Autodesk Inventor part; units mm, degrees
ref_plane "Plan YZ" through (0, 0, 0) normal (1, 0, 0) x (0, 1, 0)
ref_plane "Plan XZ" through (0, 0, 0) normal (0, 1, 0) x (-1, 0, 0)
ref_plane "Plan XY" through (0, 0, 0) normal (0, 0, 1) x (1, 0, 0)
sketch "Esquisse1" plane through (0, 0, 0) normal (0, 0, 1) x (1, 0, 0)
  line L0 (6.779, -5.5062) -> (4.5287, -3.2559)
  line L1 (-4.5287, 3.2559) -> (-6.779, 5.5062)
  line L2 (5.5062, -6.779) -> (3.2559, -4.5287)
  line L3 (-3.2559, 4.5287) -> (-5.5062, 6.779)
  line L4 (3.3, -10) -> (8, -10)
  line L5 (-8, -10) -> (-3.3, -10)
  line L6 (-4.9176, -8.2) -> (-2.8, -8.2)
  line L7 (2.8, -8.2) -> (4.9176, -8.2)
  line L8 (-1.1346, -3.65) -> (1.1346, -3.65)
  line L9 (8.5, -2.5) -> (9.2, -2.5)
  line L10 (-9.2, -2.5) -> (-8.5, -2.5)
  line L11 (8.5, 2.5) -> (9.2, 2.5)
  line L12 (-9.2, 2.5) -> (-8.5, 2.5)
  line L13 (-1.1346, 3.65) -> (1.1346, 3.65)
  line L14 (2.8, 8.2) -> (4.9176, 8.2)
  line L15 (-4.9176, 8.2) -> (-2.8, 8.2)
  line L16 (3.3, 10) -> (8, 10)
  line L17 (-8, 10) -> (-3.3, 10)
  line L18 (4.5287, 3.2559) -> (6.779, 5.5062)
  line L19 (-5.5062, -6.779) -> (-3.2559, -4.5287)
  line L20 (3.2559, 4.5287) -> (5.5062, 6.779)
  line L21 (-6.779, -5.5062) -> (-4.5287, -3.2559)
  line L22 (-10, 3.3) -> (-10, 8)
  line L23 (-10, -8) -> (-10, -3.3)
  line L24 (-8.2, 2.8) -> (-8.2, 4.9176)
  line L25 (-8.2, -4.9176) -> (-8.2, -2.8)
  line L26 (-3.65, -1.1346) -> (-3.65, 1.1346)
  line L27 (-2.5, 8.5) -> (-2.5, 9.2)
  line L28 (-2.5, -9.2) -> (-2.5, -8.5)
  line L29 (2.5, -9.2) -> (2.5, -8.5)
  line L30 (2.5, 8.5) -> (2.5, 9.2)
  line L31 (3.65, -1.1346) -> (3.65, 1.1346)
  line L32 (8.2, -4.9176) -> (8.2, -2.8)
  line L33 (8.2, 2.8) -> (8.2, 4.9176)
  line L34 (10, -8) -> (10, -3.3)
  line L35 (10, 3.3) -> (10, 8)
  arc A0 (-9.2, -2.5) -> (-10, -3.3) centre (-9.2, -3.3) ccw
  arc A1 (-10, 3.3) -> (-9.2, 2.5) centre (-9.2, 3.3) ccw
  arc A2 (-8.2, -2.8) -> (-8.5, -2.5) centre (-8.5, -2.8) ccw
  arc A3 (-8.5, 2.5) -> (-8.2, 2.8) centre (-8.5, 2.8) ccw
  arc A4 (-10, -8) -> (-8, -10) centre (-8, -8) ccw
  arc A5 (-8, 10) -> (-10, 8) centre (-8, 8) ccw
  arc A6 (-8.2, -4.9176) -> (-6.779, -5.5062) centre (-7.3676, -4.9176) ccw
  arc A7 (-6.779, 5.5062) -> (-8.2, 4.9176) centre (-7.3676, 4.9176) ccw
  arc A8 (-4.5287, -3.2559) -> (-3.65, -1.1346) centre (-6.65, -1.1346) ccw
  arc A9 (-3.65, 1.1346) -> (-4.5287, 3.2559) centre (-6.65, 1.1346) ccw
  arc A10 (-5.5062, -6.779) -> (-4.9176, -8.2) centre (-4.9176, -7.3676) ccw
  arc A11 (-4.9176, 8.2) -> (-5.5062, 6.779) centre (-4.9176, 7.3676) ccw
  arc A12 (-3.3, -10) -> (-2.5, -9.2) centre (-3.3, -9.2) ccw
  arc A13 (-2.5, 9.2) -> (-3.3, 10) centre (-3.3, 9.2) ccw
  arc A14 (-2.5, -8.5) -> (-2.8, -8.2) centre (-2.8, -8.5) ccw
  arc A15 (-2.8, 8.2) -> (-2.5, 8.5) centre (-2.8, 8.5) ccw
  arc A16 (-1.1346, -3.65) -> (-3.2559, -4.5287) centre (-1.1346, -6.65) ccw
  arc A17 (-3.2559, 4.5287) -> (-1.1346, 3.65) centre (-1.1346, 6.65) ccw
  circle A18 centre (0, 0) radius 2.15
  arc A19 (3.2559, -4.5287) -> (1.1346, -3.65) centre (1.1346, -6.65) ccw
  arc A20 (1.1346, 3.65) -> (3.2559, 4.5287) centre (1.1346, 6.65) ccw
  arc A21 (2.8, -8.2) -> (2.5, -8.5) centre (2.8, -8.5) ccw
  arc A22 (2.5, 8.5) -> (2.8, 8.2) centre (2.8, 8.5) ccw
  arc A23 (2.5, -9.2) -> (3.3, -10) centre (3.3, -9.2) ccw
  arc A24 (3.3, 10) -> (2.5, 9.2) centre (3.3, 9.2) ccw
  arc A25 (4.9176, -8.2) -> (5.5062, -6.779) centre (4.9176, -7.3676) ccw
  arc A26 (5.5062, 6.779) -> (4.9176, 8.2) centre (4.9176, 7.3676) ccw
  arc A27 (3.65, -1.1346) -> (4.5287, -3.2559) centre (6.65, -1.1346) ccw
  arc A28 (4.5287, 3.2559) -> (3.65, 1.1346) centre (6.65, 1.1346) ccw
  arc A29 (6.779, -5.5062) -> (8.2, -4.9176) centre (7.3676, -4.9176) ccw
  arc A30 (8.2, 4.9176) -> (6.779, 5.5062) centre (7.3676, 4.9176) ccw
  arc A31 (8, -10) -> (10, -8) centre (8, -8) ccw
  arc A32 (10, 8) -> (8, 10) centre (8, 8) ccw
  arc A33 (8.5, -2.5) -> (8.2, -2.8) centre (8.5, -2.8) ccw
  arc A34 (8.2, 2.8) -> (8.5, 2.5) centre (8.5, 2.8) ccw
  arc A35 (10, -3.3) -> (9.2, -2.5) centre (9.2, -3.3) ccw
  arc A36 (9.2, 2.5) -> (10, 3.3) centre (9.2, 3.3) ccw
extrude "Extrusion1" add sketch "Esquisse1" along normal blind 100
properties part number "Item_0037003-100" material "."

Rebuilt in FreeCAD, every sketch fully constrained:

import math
import FreeCAD as App
import Part
import Sketcher

V = App.Vector
Q = App.Units.Quantity

doc = App.newDocument("Part")
body = doc.addObject("PartDesign::Body", "Body")

# Sketch on XY plane
sketch1 = doc.addObject("Sketcher::SketchObject", "Sketch")
body.addObject(sketch1)
sketch1.AttachmentSupport = (doc.XY_Plane, [""])
sketch1.MapMode = "FlatFace"
sketch1.addGeometry(Part.ArcOfCircle(Part.Circle(V(7.37, -4.92, 0), V(0, 0, 1), 0.83), math.radians(-135), math.radians(0)), False)
sketch1.addGeometry(Part.LineSegment(V(6.78, -5.51, 0), V(4.53, -3.26, 0)), False)
sketch1.addGeometry(Part.ArcOfCircle(Part.Circle(V(6.65, -1.13, 0), V(0, 0, 1), 3), math.radians(180), math.radians(225)), False)
sketch1.addGeometry(Part.LineSegment(V(3.65, -1.13, 0), V(3.65, 1.13, 0)), False)
sketch1.addGeometry(Part.ArcOfCircle(Part.Circle(V(6.65, 1.13, 0), V(0, 0, 1), 3), math.radians(135), math.radians(180)), False)
sketch1.addGeometry(Part.LineSegment(V(4.53, 3.26, 0), V(6.78, 5.51, 0)), False)
sketch1.addGeometry(Part.ArcOfCircle(Part.Circle(V(7.37, 4.92, 0), V(0, 0, 1), 0.83), math.radians(0), math.radians(135)), False)
sketch1.addGeometry(Part.LineSegment(V(8.2, 4.92, 0), V(8.2, 2.8, 0)), False)
sketch1.addGeometry(Part.ArcOfCircle(Part.Circle(V(8.5, 2.8, 0), V(0, 0, 1), 0.3), math.radians(180), math.radians(270)), False)
sketch1.addGeometry(Part.LineSegment(V(8.5, 2.5, 0), V(9.2, 2.5, 0)), False)
sketch1.addGeometry(Part.ArcOfCircle(Part.Circle(V(9.2, 3.3, 0), V(0, 0, 1), 0.8), math.radians(-90), math.radians(0)), False)
sketch1.addGeometry(Part.LineSegment(V(10, 3.3, 0), V(10, 8, 0)), False)
sketch1.addGeometry(Part.ArcOfCircle(Part.Circle(V(8, 8, 0), V(0, 0, 1), 2), math.radians(0), math.radians(90)), False)
sketch1.addGeometry(Part.LineSegment(V(8, 10, 0), V(3.3, 10, 0)), False)
sketch1.addGeometry(Part.ArcOfCircle(Part.Circle(V(3.3, 9.2, 0), V(0, 0, 1), 0.8), math.radians(90), math.radians(180)), False)
sketch1.addGeometry(Part.LineSegment(V(2.5, 9.2, 0), V(2.5, 8.5, 0)), False)
sketch1.addGeometry(Part.ArcOfCircle(Part.Circle(V(2.8, 8.5, 0), V(0, 0, 1), 0.3), math.radians(180), math.radians(270)), False)
sketch1.addGeometry(Part.LineSegment(V(2.8, 8.2, 0), V(4.92, 8.2, 0)), False)
sketch1.addGeometry(Part.ArcOfCircle(Part.Circle(V(4.92, 7.37, 0), V(0, 0, 1), 0.83), math.radians(-45), math.radians(90)), False)
sketch1.addGeometry(Part.LineSegment(V(5.51, 6.78, 0), V(3.26, 4.53, 0)), False)
sketch1.addGeometry(Part.ArcOfCircle(Part.Circle(V(1.13, 6.65, 0), V(0, 0, 1), 3), math.radians(-90), math.radians(-45)), False)
sketch1.addGeometry(Part.LineSegment(V(1.13, 3.65, 0), V(-1.13, 3.65, 0)), False)
sketch1.addGeometry(Part.ArcOfCircle(Part.Circle(V(-1.13, 6.65, 0), V(0, 0, 1), 3), math.radians(-135), math.radians(-90)), False)
sketch1.addGeometry(Part.LineSegment(V(-3.26, 4.53, 0), V(-5.51, 6.78, 0)), False)
sketch1.addGeometry(Part.ArcOfCircle(Part.Circle(V(-4.92, 7.37, 0), V(0, 0, 1), 0.83), math.radians(90), math.radians(225)), False)
sketch1.addGeometry(Part.LineSegment(V(-4.92, 8.2, 0), V(-2.8, 8.2, 0)), False)
sketch1.addGeometry(Part.ArcOfCircle(Part.Circle(V(-2.8, 8.5, 0), V(0, 0, 1), 0.3), math.radians(-90), math.radians(0)), False)
sketch1.addGeometry(Part.LineSegment(V(-2.5, 8.5, 0), V(-2.5, 9.2, 0)), False)
sketch1.addGeometry(Part.ArcOfCircle(Part.Circle(V(-3.3, 9.2, 0), V(0, 0, 1), 0.8), math.radians(0), math.radians(90)), False)
sketch1.addGeometry(Part.LineSegment(V(-3.3, 10, 0), V(-8, 10, 0)), False)
sketch1.addGeometry(Part.ArcOfCircle(Part.Circle(V(-8, 8, 0), V(0, 0, 1), 2), math.radians(90), math.radians(180)), False)
sketch1.addGeometry(Part.LineSegment(V(-10, 8, 0), V(-10, 3.3, 0)), False)
sketch1.addGeometry(Part.ArcOfCircle(Part.Circle(V(-9.2, 3.3, 0), V(0, 0, 1), 0.8), math.radians(180), math.radians(270)), False)
sketch1.addGeometry(Part.LineSegment(V(-9.2, 2.5, 0), V(-8.5, 2.5, 0)), False)
sketch1.addGeometry(Part.ArcOfCircle(Part.Circle(V(-8.5, 2.8, 0), V(0, 0, 1), 0.3), math.radians(-90), math.radians(0)), False)
sketch1.addGeometry(Part.LineSegment(V(-8.2, 2.8, 0), V(-8.2, 4.92, 0)), False)
sketch1.addGeometry(Part.ArcOfCircle(Part.Circle(V(-7.37, 4.92, 0), V(0, 0, 1), 0.83), math.radians(45), math.radians(180)), False)
sketch1.addGeometry(Part.LineSegment(V(-6.78, 5.51, 0), V(-4.53, 3.26, 0)), False)
sketch1.addGeometry(Part.ArcOfCircle(Part.Circle(V(-6.65, 1.13, 0), V(0, 0, 1), 3), math.radians(0), math.radians(45)), False)
sketch1.addGeometry(Part.LineSegment(V(-3.65, 1.13, 0), V(-3.65, -1.13, 0)), False)
sketch1.addGeometry(Part.ArcOfCircle(Part.Circle(V(-6.65, -1.13, 0), V(0, 0, 1), 3), math.radians(-45), math.radians(0)), False)
sketch1.addGeometry(Part.LineSegment(V(-4.53, -3.26, 0), V(-6.78, -5.51, 0)), False)
sketch1.addGeometry(Part.ArcOfCircle(Part.Circle(V(-7.37, -4.92, 0), V(0, 0, 1), 0.83), math.radians(180), math.radians(315)), False)
sketch1.addGeometry(Part.LineSegment(V(-8.2, -4.92, 0), V(-8.2, -2.8, 0)), False)
sketch1.addGeometry(Part.ArcOfCircle(Part.Circle(V(-8.5, -2.8, 0), V(0, 0, 1), 0.3), math.radians(0), math.radians(90)), False)
sketch1.addGeometry(Part.LineSegment(V(-8.5, -2.5, 0), V(-9.2, -2.5, 0)), False)
sketch1.addGeometry(Part.ArcOfCircle(Part.Circle(V(-9.2, -3.3, 0), V(0, 0, 1), 0.8), math.radians(90), math.radians(180)), False)
sketch1.addGeometry(Part.LineSegment(V(-10, -3.3, 0), V(-10, -8, 0)), False)
sketch1.addGeometry(Part.ArcOfCircle(Part.Circle(V(-8, -8, 0), V(0, 0, 1), 2), math.radians(180), math.radians(270)), False)
sketch1.addGeometry(Part.LineSegment(V(-8, -10, 0), V(-3.3, -10, 0)), False)
sketch1.addGeometry(Part.ArcOfCircle(Part.Circle(V(-3.3, -9.2, 0), V(0, 0, 1), 0.8), math.radians(-90), math.radians(0)), False)
sketch1.addGeometry(Part.LineSegment(V(-2.5, -9.2, 0), V(-2.5, -8.5, 0)), False)
sketch1.addGeometry(Part.ArcOfCircle(Part.Circle(V(-2.8, -8.5, 0), V(0, 0, 1), 0.3), math.radians(0), math.radians(90)), False)
sketch1.addGeometry(Part.LineSegment(V(-2.8, -8.2, 0), V(-4.92, -8.2, 0)), False)
sketch1.addGeometry(Part.ArcOfCircle(Part.Circle(V(-4.92, -7.37, 0), V(0, 0, 1), 0.83), math.radians(135), math.radians(270)), False)
sketch1.addGeometry(Part.LineSegment(V(-5.51, -6.78, 0), V(-3.26, -4.53, 0)), False)
sketch1.addGeometry(Part.ArcOfCircle(Part.Circle(V(-1.13, -6.65, 0), V(0, 0, 1), 3), math.radians(90), math.radians(135)), False)
sketch1.addGeometry(Part.LineSegment(V(-1.13, -3.65, 0), V(1.13, -3.65, 0)), False)
sketch1.addGeometry(Part.ArcOfCircle(Part.Circle(V(1.13, -6.65, 0), V(0, 0, 1), 3), math.radians(45), math.radians(90)), False)
sketch1.addGeometry(Part.LineSegment(V(3.26, -4.53, 0), V(5.51, -6.78, 0)), False)
sketch1.addGeometry(Part.ArcOfCircle(Part.Circle(V(4.92, -7.37, 0), V(0, 0, 1), 0.83), math.radians(-90), math.radians(45)), False)
sketch1.addGeometry(Part.LineSegment(V(4.92, -8.2, 0), V(2.8, -8.2, 0)), False)
sketch1.addGeometry(Part.ArcOfCircle(Part.Circle(V(2.8, -8.5, 0), V(0, 0, 1), 0.3), math.radians(90), math.radians(180)), False)
sketch1.addGeometry(Part.LineSegment(V(2.5, -8.5, 0), V(2.5, -9.2, 0)), False)
sketch1.addGeometry(Part.ArcOfCircle(Part.Circle(V(3.3, -9.2, 0), V(0, 0, 1), 0.8), math.radians(180), math.radians(270)), False)
sketch1.addGeometry(Part.LineSegment(V(3.3, -10, 0), V(8, -10, 0)), False)
sketch1.addGeometry(Part.ArcOfCircle(Part.Circle(V(8, -8, 0), V(0, 0, 1), 2), math.radians(-90), math.radians(0)), False)
sketch1.addGeometry(Part.LineSegment(V(10, -8, 0), V(10, -3.3, 0)), False)
sketch1.addGeometry(Part.ArcOfCircle(Part.Circle(V(9.2, -3.3, 0), V(0, 0, 1), 0.8), math.radians(0), math.radians(90)), False)
sketch1.addGeometry(Part.LineSegment(V(9.2, -2.5, 0), V(8.5, -2.5, 0)), False)
sketch1.addGeometry(Part.ArcOfCircle(Part.Circle(V(8.5, -2.8, 0), V(0, 0, 1), 0.3), math.radians(90), math.radians(180)), False)
sketch1.addGeometry(Part.LineSegment(V(8.2, -2.8, 0), V(8.2, -4.92, 0)), False)
sketch1.addGeometry(Part.Circle(V(0, 0, 0), V(0, 0, 1), 2.15), False)
sketch1.addConstraint(Sketcher.Constraint("Tangent", 0, 1, 1, 1))
sketch1.addConstraint(Sketcher.Constraint("Tangent", 1, 2, 2, 2))
sketch1.addConstraint(Sketcher.Constraint("Tangent", 2, 1, 3, 1))
sketch1.addConstraint(Sketcher.Constraint("Tangent", 3, 2, 4, 2))
sketch1.addConstraint(Sketcher.Constraint("Tangent", 4, 1, 5, 1))
sketch1.addConstraint(Sketcher.Constraint("Tangent", 5, 2, 6, 2))
sketch1.addConstraint(Sketcher.Constraint("Tangent", 6, 1, 7, 1))
sketch1.addConstraint(Sketcher.Constraint("Tangent", 7, 2, 8, 1))
sketch1.addConstraint(Sketcher.Constraint("Tangent", 8, 2, 9, 1))
sketch1.addConstraint(Sketcher.Constraint("Tangent", 9, 2, 10, 1))
sketch1.addConstraint(Sketcher.Constraint("Tangent", 10, 2, 11, 1))
sketch1.addConstraint(Sketcher.Constraint("Tangent", 11, 2, 12, 1))
sketch1.addConstraint(Sketcher.Constraint("Tangent", 12, 2, 13, 1))
sketch1.addConstraint(Sketcher.Constraint("Tangent", 13, 2, 14, 1))
sketch1.addConstraint(Sketcher.Constraint("Tangent", 14, 2, 15, 1))
sketch1.addConstraint(Sketcher.Constraint("Tangent", 15, 2, 16, 1))
sketch1.addConstraint(Sketcher.Constraint("Tangent", 16, 2, 17, 1))
sketch1.addConstraint(Sketcher.Constraint("Tangent", 17, 2, 18, 2))
sketch1.addConstraint(Sketcher.Constraint("Tangent", 18, 1, 19, 1))
sketch1.addConstraint(Sketcher.Constraint("Tangent", 19, 2, 20, 2))
sketch1.addConstraint(Sketcher.Constraint("Tangent", 20, 1, 21, 1))
sketch1.addConstraint(Sketcher.Constraint("Tangent", 21, 2, 22, 2))
sketch1.addConstraint(Sketcher.Constraint("Tangent", 22, 1, 23, 1))
sketch1.addConstraint(Sketcher.Constraint("Tangent", 23, 2, 24, 2))
sketch1.addConstraint(Sketcher.Constraint("Tangent", 24, 1, 25, 1))
sketch1.addConstraint(Sketcher.Constraint("Tangent", 25, 2, 26, 1))
sketch1.addConstraint(Sketcher.Constraint("Tangent", 26, 2, 27, 1))
sketch1.addConstraint(Sketcher.Constraint("Tangent", 27, 2, 28, 1))
sketch1.addConstraint(Sketcher.Constraint("Tangent", 28, 2, 29, 1))
sketch1.addConstraint(Sketcher.Constraint("Tangent", 29, 2, 30, 1))
sketch1.addConstraint(Sketcher.Constraint("Tangent", 30, 2, 31, 1))
sketch1.addConstraint(Sketcher.Constraint("Tangent", 31, 2, 32, 1))
sketch1.addConstraint(Sketcher.Constraint("Tangent", 32, 2, 33, 1))
sketch1.addConstraint(Sketcher.Constraint("Tangent", 33, 2, 34, 1))
sketch1.addConstraint(Sketcher.Constraint("Tangent", 34, 2, 35, 1))
sketch1.addConstraint(Sketcher.Constraint("Tangent", 35, 2, 36, 2))
sketch1.addConstraint(Sketcher.Constraint("Tangent", 36, 1, 37, 1))
sketch1.addConstraint(Sketcher.Constraint("Tangent", 37, 2, 38, 2))
sketch1.addConstraint(Sketcher.Constraint("Tangent", 38, 1, 39, 1))
sketch1.addConstraint(Sketcher.Constraint("Tangent", 39, 2, 40, 2))
sketch1.addConstraint(Sketcher.Constraint("Tangent", 40, 1, 41, 1))
sketch1.addConstraint(Sketcher.Constraint("Tangent", 41, 2, 42, 2))
sketch1.addConstraint(Sketcher.Constraint("Tangent", 42, 1, 43, 1))
sketch1.addConstraint(Sketcher.Constraint("Tangent", 43, 2, 44, 1))
sketch1.addConstraint(Sketcher.Constraint("Tangent", 44, 2, 45, 1))
sketch1.addConstraint(Sketcher.Constraint("Tangent", 45, 2, 46, 1))
sketch1.addConstraint(Sketcher.Constraint("Tangent", 46, 2, 47, 1))
sketch1.addConstraint(Sketcher.Constraint("Tangent", 47, 2, 48, 1))
sketch1.addConstraint(Sketcher.Constraint("Tangent", 48, 2, 49, 1))
sketch1.addConstraint(Sketcher.Constraint("Tangent", 49, 2, 50, 1))
sketch1.addConstraint(Sketcher.Constraint("Tangent", 50, 2, 51, 1))
sketch1.addConstraint(Sketcher.Constraint("Tangent", 51, 2, 52, 1))
sketch1.addConstraint(Sketcher.Constraint("Tangent", 52, 2, 53, 1))
sketch1.addConstraint(Sketcher.Constraint("Tangent", 53, 2, 54, 2))
sketch1.addConstraint(Sketcher.Constraint("Tangent", 54, 1, 55, 1))
sketch1.addConstraint(Sketcher.Constraint("Tangent", 55, 2, 56, 2))
sketch1.addConstraint(Sketcher.Constraint("Tangent", 56, 1, 57, 1))
sketch1.addConstraint(Sketcher.Constraint("Tangent", 57, 2, 58, 2))
sketch1.addConstraint(Sketcher.Constraint("Tangent", 58, 1, 59, 1))
sketch1.addConstraint(Sketcher.Constraint("Tangent", 59, 2, 60, 2))
sketch1.addConstraint(Sketcher.Constraint("Tangent", 60, 1, 61, 1))
sketch1.addConstraint(Sketcher.Constraint("Tangent", 61, 2, 62, 1))
sketch1.addConstraint(Sketcher.Constraint("Tangent", 62, 2, 63, 1))
sketch1.addConstraint(Sketcher.Constraint("Tangent", 63, 2, 64, 1))
sketch1.addConstraint(Sketcher.Constraint("Tangent", 64, 2, 65, 1))
sketch1.addConstraint(Sketcher.Constraint("Tangent", 65, 2, 66, 1))
sketch1.addConstraint(Sketcher.Constraint("Tangent", 66, 2, 67, 1))
sketch1.addConstraint(Sketcher.Constraint("Tangent", 67, 2, 68, 1))
sketch1.addConstraint(Sketcher.Constraint("Tangent", 68, 2, 69, 1))
sketch1.addConstraint(Sketcher.Constraint("Tangent", 69, 2, 70, 1))
sketch1.addConstraint(Sketcher.Constraint("Tangent", 70, 2, 71, 1))
sketch1.addConstraint(Sketcher.Constraint("Tangent", 71, 2, 0, 2))
sketch1.addConstraint(Sketcher.Constraint("Vertical", 3))
sketch1.addConstraint(Sketcher.Constraint("Vertical", 7))
sketch1.addConstraint(Sketcher.Constraint("Horizontal", 9))
sketch1.addConstraint(Sketcher.Constraint("Vertical", 11))
sketch1.addConstraint(Sketcher.Constraint("Horizontal", 13))
sketch1.addConstraint(Sketcher.Constraint("Vertical", 15))
sketch1.addConstraint(Sketcher.Constraint("Horizontal", 17))
sketch1.addConstraint(Sketcher.Constraint("Horizontal", 21))
sketch1.addConstraint(Sketcher.Constraint("Horizontal", 25))
sketch1.addConstraint(Sketcher.Constraint("Vertical", 27))
sketch1.addConstraint(Sketcher.Constraint("Horizontal", 29))
sketch1.addConstraint(Sketcher.Constraint("Vertical", 31))
sketch1.addConstraint(Sketcher.Constraint("Horizontal", 33))
sketch1.addConstraint(Sketcher.Constraint("Vertical", 35))
sketch1.addConstraint(Sketcher.Constraint("Vertical", 39))
sketch1.addConstraint(Sketcher.Constraint("Vertical", 43))
sketch1.addConstraint(Sketcher.Constraint("Horizontal", 45))
sketch1.addConstraint(Sketcher.Constraint("Vertical", 47))
sketch1.addConstraint(Sketcher.Constraint("Horizontal", 49))
sketch1.addConstraint(Sketcher.Constraint("Vertical", 51))
sketch1.addConstraint(Sketcher.Constraint("Horizontal", 53))
sketch1.addConstraint(Sketcher.Constraint("Horizontal", 57))
sketch1.addConstraint(Sketcher.Constraint("Horizontal", 61))
sketch1.addConstraint(Sketcher.Constraint("Vertical", 63))
sketch1.addConstraint(Sketcher.Constraint("Horizontal", 65))
sketch1.addConstraint(Sketcher.Constraint("Vertical", 67))
sketch1.addConstraint(Sketcher.Constraint("Horizontal", 69))
sketch1.addConstraint(Sketcher.Constraint("Vertical", 71))
sketch1.addConstraint(Sketcher.Constraint("Coincident", 72, 3, -1, 1))
sketch1.addConstraint(Sketcher.Constraint("Equal", 2, 4))
sketch1.addConstraint(Sketcher.Constraint("Equal", 0, 6))
sketch1.addConstraint(Sketcher.Constraint("Equal", 10, 14))
sketch1.addConstraint(Sketcher.Constraint("Equal", 8, 16))
sketch1.addConstraint(Sketcher.Constraint("Equal", 6, 18))
sketch1.addConstraint(Sketcher.Constraint("Equal", 4, 20))
sketch1.addConstraint(Sketcher.Constraint("Equal", 20, 22))
sketch1.addConstraint(Sketcher.Constraint("Equal", 18, 24))
sketch1.addConstraint(Sketcher.Constraint("Equal", 16, 26))
sketch1.addConstraint(Sketcher.Constraint("Equal", 14, 28))
sketch1.addConstraint(Sketcher.Constraint("Equal", 12, 30))
sketch1.addConstraint(Sketcher.Constraint("Equal", 28, 32))
sketch1.addConstraint(Sketcher.Constraint("Equal", 26, 34))
sketch1.addConstraint(Sketcher.Constraint("Equal", 24, 36))
sketch1.addConstraint(Sketcher.Constraint("Equal", 22, 38))
sketch1.addConstraint(Sketcher.Constraint("Equal", 38, 40))
sketch1.addConstraint(Sketcher.Constraint("Equal", 36, 42))
sketch1.addConstraint(Sketcher.Constraint("Equal", 34, 44))
sketch1.addConstraint(Sketcher.Constraint("Equal", 32, 46))
sketch1.addConstraint(Sketcher.Constraint("Equal", 30, 48))
sketch1.addConstraint(Sketcher.Constraint("Equal", 46, 50))
sketch1.addConstraint(Sketcher.Constraint("Equal", 44, 52))
sketch1.addConstraint(Sketcher.Constraint("Equal", 42, 54))
sketch1.addConstraint(Sketcher.Constraint("Equal", 40, 56))
sketch1.addConstraint(Sketcher.Constraint("Equal", 56, 58))
sketch1.addConstraint(Sketcher.Constraint("Equal", 54, 60))
sketch1.addConstraint(Sketcher.Constraint("Equal", 52, 62))
sketch1.addConstraint(Sketcher.Constraint("Equal", 50, 64))
sketch1.addConstraint(Sketcher.Constraint("Equal", 48, 66))
sketch1.addConstraint(Sketcher.Constraint("Equal", 64, 68))
sketch1.addConstraint(Sketcher.Constraint("Equal", 62, 70))
sketch1.addConstraint(Sketcher.Constraint("Symmetric", 0, 3, 36, 3, -1, 1))
sketch1.addConstraint(Sketcher.Constraint("Symmetric", 2, 3, 38, 3, -1, 1))
sketch1.addConstraint(Sketcher.Constraint("Symmetric", 6, 3, 42, 3, -1, 1))
sketch1.addConstraint(Sketcher.Constraint("Symmetric", 10, 3, 46, 3, -1, 1))
sketch1.addConstraint(Sketcher.Constraint("Symmetric", 14, 3, 50, 3, -1, 1))
sketch1.addConstraint(Sketcher.Constraint("Symmetric", 18, 3, 54, 3, -1, 1))
sketch1.addConstraint(Sketcher.Constraint("Symmetric", 20, 3, 56, 3, -1, 1))
sketch1.addConstraint(Sketcher.Constraint("Symmetric", 24, 3, 60, 3, -1, 1))
sketch1.addConstraint(Sketcher.Constraint("Symmetric", 28, 3, 64, 3, -1, 1))
sketch1.addConstraint(Sketcher.Constraint("Symmetric", 32, 3, 68, 3, -1, 1))
sketch1.addConstraint(Sketcher.Constraint("Symmetric", 18, 3, 24, 3, -2))
sketch1.addConstraint(Sketcher.Constraint("Symmetric", 14, 3, 28, 3, -2))
sketch1.addConstraint(Sketcher.Constraint("Symmetric", 10, 3, 32, 3, -2))
sketch1.addConstraint(Sketcher.Constraint("Symmetric", 6, 3, 36, 3, -2))
sketch1.addConstraint(Sketcher.Constraint("Perpendicular", 1, 5))
sketch1.addConstraint(Sketcher.Constraint("Parallel", 5, 19))
sketch1.addConstraint(Sketcher.Constraint("Perpendicular", 19, 23))
sketch1.addConstraint(Sketcher.Constraint("Perpendicular", 37, 41))
sketch1.addConstraint(Sketcher.Constraint("Perpendicular", 55, 59))
sketch1.addConstraint(Sketcher.Constraint("Horizontal", 4, 3, 38, 3))
sketch1.addConstraint(Sketcher.Constraint("Equal", 57, 3))
sketch1.addConstraint(Sketcher.Constraint("Equal", 61, 7))
sketch1.addConstraint(Sketcher.Constraint("Equal", 65, 11))
sketch1.addConstraint(Sketcher.Constraint("Equal", 69, 15))
sketch1.addConstraint(Sketcher.Constraint("Equal", 5, 19))
sketch1.addConstraint(Sketcher.Constraint("Radius", 2, Q("3 mm")))
sketch1.addConstraint(Sketcher.Constraint("Radius", 12, Q("2 mm")))
sketch1.addConstraint(Sketcher.Constraint("Diameter", 72, Q("4.3 mm")))
sketch1.addConstraint(Sketcher.Constraint("Radius", 8, Q("0.3 mm")))
sketch1.addConstraint(Sketcher.Constraint("Radius", 10, Q("0.8 mm")))
sketch1.addConstraint(Sketcher.Constraint("DistanceX", 9, 1, 9, 2, Q("0.7 mm")))
sketch1.addConstraint(Sketcher.Constraint("DistanceX", 13, 2, 13, 1, Q("4.7 mm")))
sketch1.addConstraint(Sketcher.Constraint("DistanceX", -1, 1, 12, 3, Q("8 mm")))
sketch1.addConstraint(Sketcher.Constraint("Radius", 0, Q("0.8324 mm")))
sketch1.addConstraint(Sketcher.Constraint("DistanceX", -1, 1, 2, 3, Q("6.65 mm")))
sketch1.addConstraint(Sketcher.Constraint("DistanceX", 17, 1, 17, 2, Q("2.1176 mm")))
pad1 = doc.addObject("PartDesign::Pad", "Pad")
body.addObject(pad1)
pad1.Profile = sketch1
pad1.Length = 100

doc.recompute()
